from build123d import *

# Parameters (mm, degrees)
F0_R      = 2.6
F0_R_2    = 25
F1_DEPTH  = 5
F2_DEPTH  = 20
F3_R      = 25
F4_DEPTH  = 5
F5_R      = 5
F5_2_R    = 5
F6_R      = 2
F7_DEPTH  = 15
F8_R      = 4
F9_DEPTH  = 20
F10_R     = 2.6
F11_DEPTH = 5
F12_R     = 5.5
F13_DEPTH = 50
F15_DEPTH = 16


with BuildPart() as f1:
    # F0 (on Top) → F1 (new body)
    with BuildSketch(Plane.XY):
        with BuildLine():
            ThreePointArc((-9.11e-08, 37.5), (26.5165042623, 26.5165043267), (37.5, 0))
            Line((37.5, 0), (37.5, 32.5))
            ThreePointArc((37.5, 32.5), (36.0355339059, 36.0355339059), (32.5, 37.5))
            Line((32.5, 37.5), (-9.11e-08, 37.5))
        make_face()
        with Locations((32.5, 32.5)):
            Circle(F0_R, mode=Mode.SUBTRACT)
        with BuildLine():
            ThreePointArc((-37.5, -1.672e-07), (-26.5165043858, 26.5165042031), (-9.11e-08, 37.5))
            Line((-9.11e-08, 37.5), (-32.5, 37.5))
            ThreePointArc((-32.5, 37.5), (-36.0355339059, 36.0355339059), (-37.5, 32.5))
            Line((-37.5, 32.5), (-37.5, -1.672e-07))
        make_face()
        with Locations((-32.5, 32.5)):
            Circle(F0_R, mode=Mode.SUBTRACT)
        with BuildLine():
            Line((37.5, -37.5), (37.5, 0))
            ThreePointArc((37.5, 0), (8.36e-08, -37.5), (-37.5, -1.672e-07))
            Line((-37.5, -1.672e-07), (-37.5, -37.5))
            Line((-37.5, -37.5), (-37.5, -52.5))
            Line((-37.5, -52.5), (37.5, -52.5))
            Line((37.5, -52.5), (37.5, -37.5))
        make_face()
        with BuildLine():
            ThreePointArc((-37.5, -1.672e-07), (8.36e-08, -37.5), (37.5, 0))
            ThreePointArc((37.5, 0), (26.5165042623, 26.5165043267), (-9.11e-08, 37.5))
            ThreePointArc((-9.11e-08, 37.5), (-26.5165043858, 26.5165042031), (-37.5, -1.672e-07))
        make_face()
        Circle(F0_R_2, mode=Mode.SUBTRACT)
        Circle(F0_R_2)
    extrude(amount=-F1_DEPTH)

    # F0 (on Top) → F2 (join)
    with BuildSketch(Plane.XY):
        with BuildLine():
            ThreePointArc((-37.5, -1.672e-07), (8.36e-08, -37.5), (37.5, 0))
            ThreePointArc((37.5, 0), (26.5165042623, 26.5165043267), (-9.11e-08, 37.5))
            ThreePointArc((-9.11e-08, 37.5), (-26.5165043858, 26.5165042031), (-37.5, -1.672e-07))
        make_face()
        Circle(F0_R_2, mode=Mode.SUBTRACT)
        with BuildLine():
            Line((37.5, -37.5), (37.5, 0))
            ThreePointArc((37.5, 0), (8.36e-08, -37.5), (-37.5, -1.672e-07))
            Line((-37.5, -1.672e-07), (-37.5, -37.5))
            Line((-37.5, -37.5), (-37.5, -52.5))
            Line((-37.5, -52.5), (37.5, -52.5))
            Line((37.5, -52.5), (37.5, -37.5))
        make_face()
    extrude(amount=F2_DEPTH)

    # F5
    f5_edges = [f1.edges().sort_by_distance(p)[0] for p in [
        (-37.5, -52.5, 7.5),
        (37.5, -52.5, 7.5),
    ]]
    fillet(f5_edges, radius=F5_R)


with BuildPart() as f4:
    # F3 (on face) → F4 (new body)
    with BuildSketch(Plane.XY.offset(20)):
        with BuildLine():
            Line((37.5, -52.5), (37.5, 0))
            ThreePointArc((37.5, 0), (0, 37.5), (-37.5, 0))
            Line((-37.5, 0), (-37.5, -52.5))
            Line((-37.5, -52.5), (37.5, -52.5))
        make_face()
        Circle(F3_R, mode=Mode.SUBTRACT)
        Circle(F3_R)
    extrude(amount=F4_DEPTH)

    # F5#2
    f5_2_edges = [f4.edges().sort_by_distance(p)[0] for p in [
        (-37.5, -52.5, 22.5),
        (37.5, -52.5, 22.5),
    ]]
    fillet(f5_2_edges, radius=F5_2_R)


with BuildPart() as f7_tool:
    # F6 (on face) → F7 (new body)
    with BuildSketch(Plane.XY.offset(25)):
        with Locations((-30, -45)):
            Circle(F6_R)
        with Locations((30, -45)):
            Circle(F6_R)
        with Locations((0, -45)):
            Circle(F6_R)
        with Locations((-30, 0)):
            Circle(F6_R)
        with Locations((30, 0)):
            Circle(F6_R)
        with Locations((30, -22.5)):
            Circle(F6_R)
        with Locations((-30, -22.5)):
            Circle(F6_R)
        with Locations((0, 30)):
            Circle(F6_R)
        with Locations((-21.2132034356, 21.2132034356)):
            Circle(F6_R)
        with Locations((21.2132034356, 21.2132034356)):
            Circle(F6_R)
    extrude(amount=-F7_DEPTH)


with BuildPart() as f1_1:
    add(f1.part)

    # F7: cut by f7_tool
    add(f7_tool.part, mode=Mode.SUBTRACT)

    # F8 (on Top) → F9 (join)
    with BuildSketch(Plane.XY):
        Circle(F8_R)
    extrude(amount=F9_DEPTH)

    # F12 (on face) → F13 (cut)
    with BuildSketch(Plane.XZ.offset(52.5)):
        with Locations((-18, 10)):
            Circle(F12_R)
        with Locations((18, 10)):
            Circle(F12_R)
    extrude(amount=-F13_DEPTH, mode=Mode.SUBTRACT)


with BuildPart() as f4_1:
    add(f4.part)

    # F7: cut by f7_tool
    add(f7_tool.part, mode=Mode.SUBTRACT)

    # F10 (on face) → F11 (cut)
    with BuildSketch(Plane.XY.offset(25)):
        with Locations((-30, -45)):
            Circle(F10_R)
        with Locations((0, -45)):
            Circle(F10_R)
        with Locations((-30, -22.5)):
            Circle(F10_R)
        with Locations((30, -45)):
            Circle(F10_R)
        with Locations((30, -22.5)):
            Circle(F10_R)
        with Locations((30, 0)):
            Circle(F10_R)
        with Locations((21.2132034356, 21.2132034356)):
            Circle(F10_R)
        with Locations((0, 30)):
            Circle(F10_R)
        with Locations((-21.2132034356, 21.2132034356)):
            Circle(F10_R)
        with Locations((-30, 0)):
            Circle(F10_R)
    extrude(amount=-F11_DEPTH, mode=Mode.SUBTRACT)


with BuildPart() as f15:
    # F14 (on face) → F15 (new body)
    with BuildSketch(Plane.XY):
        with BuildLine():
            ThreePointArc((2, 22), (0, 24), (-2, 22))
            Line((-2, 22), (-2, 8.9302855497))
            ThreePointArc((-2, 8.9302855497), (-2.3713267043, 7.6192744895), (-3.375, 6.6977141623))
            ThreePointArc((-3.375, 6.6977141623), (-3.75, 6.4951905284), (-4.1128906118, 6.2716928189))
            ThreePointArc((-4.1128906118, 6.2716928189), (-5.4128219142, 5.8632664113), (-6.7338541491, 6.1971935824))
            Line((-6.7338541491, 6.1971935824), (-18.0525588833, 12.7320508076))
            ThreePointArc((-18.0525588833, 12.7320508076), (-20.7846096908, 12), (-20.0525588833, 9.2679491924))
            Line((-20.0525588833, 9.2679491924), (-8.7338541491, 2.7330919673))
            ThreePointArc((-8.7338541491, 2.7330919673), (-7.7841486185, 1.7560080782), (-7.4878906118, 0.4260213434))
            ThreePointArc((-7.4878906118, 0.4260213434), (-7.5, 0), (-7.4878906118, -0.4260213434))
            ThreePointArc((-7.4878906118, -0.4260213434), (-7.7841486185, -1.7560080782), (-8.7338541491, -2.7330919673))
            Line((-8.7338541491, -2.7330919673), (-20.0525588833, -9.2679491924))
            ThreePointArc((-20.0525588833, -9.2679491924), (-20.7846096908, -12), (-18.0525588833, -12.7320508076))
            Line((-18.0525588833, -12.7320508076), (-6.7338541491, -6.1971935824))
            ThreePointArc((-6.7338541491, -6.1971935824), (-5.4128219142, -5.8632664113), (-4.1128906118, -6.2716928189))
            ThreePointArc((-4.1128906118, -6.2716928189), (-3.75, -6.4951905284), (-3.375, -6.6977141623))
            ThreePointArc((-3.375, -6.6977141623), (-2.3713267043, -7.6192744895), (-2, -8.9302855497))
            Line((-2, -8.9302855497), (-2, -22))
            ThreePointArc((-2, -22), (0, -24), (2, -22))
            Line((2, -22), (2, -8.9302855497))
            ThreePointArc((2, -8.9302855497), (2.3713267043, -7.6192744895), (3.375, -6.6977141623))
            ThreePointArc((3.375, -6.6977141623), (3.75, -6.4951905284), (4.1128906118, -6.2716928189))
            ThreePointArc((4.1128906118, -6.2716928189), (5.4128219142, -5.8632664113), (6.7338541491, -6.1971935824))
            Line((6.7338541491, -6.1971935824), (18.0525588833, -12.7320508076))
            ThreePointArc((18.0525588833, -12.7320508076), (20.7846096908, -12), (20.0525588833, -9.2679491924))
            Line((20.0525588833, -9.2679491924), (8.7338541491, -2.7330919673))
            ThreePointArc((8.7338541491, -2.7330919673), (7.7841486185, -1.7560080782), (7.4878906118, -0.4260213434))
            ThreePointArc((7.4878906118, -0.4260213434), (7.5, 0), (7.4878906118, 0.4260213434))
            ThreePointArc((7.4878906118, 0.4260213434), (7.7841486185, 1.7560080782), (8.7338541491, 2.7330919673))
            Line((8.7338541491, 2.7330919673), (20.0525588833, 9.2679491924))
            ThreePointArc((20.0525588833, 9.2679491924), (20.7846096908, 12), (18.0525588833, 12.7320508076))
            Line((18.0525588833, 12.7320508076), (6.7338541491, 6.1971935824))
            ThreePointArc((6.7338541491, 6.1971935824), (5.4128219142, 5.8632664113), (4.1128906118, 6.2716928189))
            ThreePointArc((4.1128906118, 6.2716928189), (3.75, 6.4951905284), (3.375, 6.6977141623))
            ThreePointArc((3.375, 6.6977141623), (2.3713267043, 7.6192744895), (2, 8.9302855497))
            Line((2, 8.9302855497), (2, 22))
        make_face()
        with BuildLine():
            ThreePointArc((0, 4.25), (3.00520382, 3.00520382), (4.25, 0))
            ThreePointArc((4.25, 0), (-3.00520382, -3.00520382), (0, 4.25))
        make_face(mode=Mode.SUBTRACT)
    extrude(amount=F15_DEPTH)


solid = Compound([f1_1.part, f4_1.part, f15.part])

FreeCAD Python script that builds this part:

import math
import FreeCAD as App
import Part
import Sketcher

V = App.Vector
Q = App.Units.Quantity


def edges_at(feature, points):
    """Names of the edges that pass closest to the given points."""
    edges = feature.Shape.Edges
    near = lambda p: min(range(len(edges)), key=lambda i: edges[i].distToShape(Part.Vertex(*p))[0])
    return sorted({f"Edge{near(p) + 1}" for p in points})

doc = App.newDocument("Part")
body = doc.addObject("PartDesign::Body", "Body")

sketch1 = body.newObject("Sketcher::SketchObject", "Sketch")
sketch1.AttachmentSupport = (doc.getObject("XY_Plane"), [""])
sketch1.MapMode = "FlatFace"
sketch1.addGeometry(Part.LineSegment(V(32.5, 37.5, 0), V(-32.5, 37.5, 0)), False)
sketch1.addGeometry(Part.ArcOfCircle(Part.Circle(V(-32.5, 32.5, 0), V(0, 0, 1), 5), math.radians(90), math.radians(180)), False)
sketch1.addGeometry(Part.LineSegment(V(-37.5, 32.5, 0), V(-37.5, -52.5, 0)), False)
sketch1.addGeometry(Part.LineSegment(V(-37.5, -52.5, 0), V(37.5, -52.5, 0)), False)
sketch1.addGeometry(Part.LineSegment(V(37.5, -52.5, 0), V(37.5, 32.5, 0)), False)
sketch1.addGeometry(Part.ArcOfCircle(Part.Circle(V(32.5, 32.5, 0), V(0, 0, 1), 5), math.radians(0), math.radians(90)), False)
sketch1.addGeometry(Part.Circle(V(-32.5, 32.5, 0), V(0, 0, 1), 2.6), False)
sketch1.addGeometry(Part.Circle(V(32.5, 32.5, 0), V(0, 0, 1), 2.6), False)
sketch1.addConstraint(Sketcher.Constraint("Tangent", 0, 2, 1, 1))
sketch1.addConstraint(Sketcher.Constraint("Tangent", 1, 2, 2, 1))
sketch1.addConstraint(Sketcher.Constraint("Coincident", 2, 2, 3, 1))
sketch1.addConstraint(Sketcher.Constraint("Coincident", 3, 2, 4, 1))
sketch1.addConstraint(Sketcher.Constraint("Tangent", 4, 2, 5, 1))
sketch1.addConstraint(Sketcher.Constraint("Tangent", 5, 2, 0, 1))
sketch1.addConstraint(Sketcher.Constraint("Horizontal", 0))
sketch1.addConstraint(Sketcher.Constraint("Vertical", 2))
sketch1.addConstraint(Sketcher.Constraint("Horizontal", 3))
sketch1.addConstraint(Sketcher.Constraint("Vertical", 4))
sketch1.addConstraint(Sketcher.Constraint("Coincident", 6, 3, 1, 3))
sketch1.addConstraint(Sketcher.Constraint("Coincident", 7, 3, 5, 3))
sketch1.addConstraint(Sketcher.Constraint("Equal", 1, 5))
sketch1.addConstraint(Sketcher.Constraint("Equal", 6, 7))
sketch1.addConstraint(Sketcher.Constraint("Radius", 1, Q("5 mm")))
sketch1.addConstraint(Sketcher.Constraint("Diameter", 6, Q("5.2 mm")))
sketch1.addConstraint(Sketcher.Constraint("DistanceX", 0, 2, 0, 1, Q("65 mm")))
sketch1.addConstraint(Sketcher.Constraint("DistanceY", 2, 2, 2, 1, Q("85 mm")))
sketch1.addConstraint(Sketcher.Constraint("DistanceX", 1, 3, -1, 1, Q("32.5 mm")))
sketch1.addConstraint(Sketcher.Constraint("DistanceY", -1, 1, 1, 3, Q("32.5 mm")))
pad1 = body.newObject("PartDesign::Pad", "Pad")
pad1.Profile = sketch1
pad1.Length = 5
pad1.Reversed = True

sketch2 = body.newObject("Sketcher::SketchObject", "Sketch001")
sketch2.AttachmentSupport = (doc.getObject("XY_Plane"), [""])
sketch2.MapMode = "FlatFace"
sketch2.addGeometry(Part.ArcOfCircle(Part.Circle(V(0, 0, 0), V(0, 0, 1), 38), math.radians(0), math.radians(90)), False)
sketch2.addGeometry(Part.ArcOfCircle(Part.Circle(V(0, 0, 0), V(0, 0, 1), 38), math.radians(90), math.radians(180)), False)
sketch2.addGeometry(Part.LineSegment(V(-38, 0, 0), V(-38, -52, 0)), False)
sketch2.addGeometry(Part.LineSegment(V(-38, -52, 0), V(38, -52, 0)), False)
sketch2.addGeometry(Part.LineSegment(V(38, -52, 0), V(38, 0, 0)), False)
sketch2.addGeometry(Part.Circle(V(0, 0, 0), V(0, 0, 1), 25), False)
sketch2.addConstraint(Sketcher.Constraint("Tangent", 0, 2, 1, 1))
sketch2.addConstraint(Sketcher.Constraint("Tangent", 1, 2, 2, 1))
sketch2.addConstraint(Sketcher.Constraint("Coincident", 2, 2, 3, 1))
sketch2.addConstraint(Sketcher.Constraint("Coincident", 3, 2, 4, 1))
sketch2.addConstraint(Sketcher.Constraint("Tangent", 4, 2, 0, 1))
sketch2.addConstraint(Sketcher.Constraint("Vertical", 2))
sketch2.addConstraint(Sketcher.Constraint("Horizontal", 3))
sketch2.addConstraint(Sketcher.Constraint("Vertical", 4))
sketch2.addConstraint(Sketcher.Constraint("Coincident", 0, 3, -1, 1))
sketch2.addConstraint(Sketcher.Constraint("Coincident", 5, 3, -1, 1))
sketch2.addConstraint(Sketcher.Constraint("Equal", 0, 1))
sketch2.addConstraint(Sketcher.Constraint("PointOnObject", 0, 2, -2))
sketch2.addConstraint(Sketcher.Constraint("Diameter", 5, Q("50 mm")))
sketch2.addConstraint(Sketcher.Constraint("Radius", 0, Q("37.5 mm")))
sketch2.addConstraint(Sketcher.Constraint("DistanceY", 2, 2, 2, 1, Q("52.5 mm")))
pad2 = body.newObject("PartDesign::Pad", "Pad001")
pad2.Profile = sketch2
pad2.Length = 20
doc.recompute()

fillet = body.newObject("PartDesign::Fillet", "Fillet")
fillet.Base = (pad2, edges_at(pad2, [(-37.5, -52.5, 7.5), (37.5, -52.5, 7.5)]))
fillet.Radius = 5
body2 = doc.addObject("PartDesign::Body", "Body001")

sketch3 = body2.newObject("Sketcher::SketchObject", "Sketch002")
sketch3.AttachmentSupport = (doc.getObject("XY_Plane001"), [""])
sketch3.MapMode = "FlatFace"
sketch3.AttachmentOffset = App.Placement(V(0, 0, 20), App.Rotation())
sketch3.addGeometry(Part.LineSegment(V(38, -52, 0), V(38, 0, 0)), False)
sketch3.addGeometry(Part.ArcOfCircle(Part.Circle(V(0, 0, 0), V(0, 0, 1), 38), math.radians(0), math.radians(180)), False)
sketch3.addGeometry(Part.LineSegment(V(-38, 0, 0), V(-38, -52, 0)), False)
sketch3.addGeometry(Part.LineSegment(V(-38, -52, 0), V(38, -52, 0)), False)
sketch3.addConstraint(Sketcher.Constraint("Tangent", 0, 2, 1, 1))
sketch3.addConstraint(Sketcher.Constraint("Tangent", 1, 2, 2, 1))
sketch3.addConstraint(Sketcher.Constraint("Coincident", 2, 2, 3, 1))
sketch3.addConstraint(Sketcher.Constraint("Coincident", 3, 2, 0, 1))
sketch3.addConstraint(Sketcher.Constraint("Vertical", 0))
sketch3.addConstraint(Sketcher.Constraint("Vertical", 2))
sketch3.addConstraint(Sketcher.Constraint("Horizontal", 3))
sketch3.addConstraint(Sketcher.Constraint("Coincident", 1, 3, -1, 1))
sketch3.addConstraint(Sketcher.Constraint("Radius", 1, Q("37.5 mm")))
sketch3.addConstraint(Sketcher.Constraint("DistanceY", 0, 1, 0, 2, Q("52.5 mm")))
pad3 = body2.newObject("PartDesign::Pad", "Pad002")
pad3.Profile = sketch3
pad3.Length = 5
doc.recompute()

fillet2 = body2.newObject("PartDesign::Fillet", "Fillet001")
fillet2.Base = (pad3, edges_at(pad3, [(-37.5, -52.5, 22.5), (37.5, -52.5, 22.5)]))
fillet2.Radius = 5
body3 = doc.addObject("PartDesign::Body", "Body002")
body3.AllowCompound = True

sketch4 = body3.newObject("Sketcher::SketchObject", "Sketch003")
sketch4.AttachmentSupport = (doc.getObject("XY_Plane002"), [""])
sketch4.MapMode = "FlatFace"
sketch4.AttachmentOffset = App.Placement(V(0, 0, 25), App.Rotation())
sketch4.addGeometry(Part.Circle(V(-30, -45, 0), V(0, 0, 1), 2), False)
sketch4.addGeometry(Part.Circle(V(30, -45, 0), V(0, 0, 1), 2), False)
sketch4.addGeometry(Part.Circle(V(0, -45, 0), V(0, 0, 1), 2), False)
sketch4.addGeometry(Part.Circle(V(-30, 0, 0), V(0, 0, 1), 2), False)
sketch4.addGeometry(Part.Circle(V(30, 0, 0), V(0, 0, 1), 2), False)
sketch4.addGeometry(Part.Circle(V(30, -22.5, 0), V(0, 0, 1), 2), False)
sketch4.addGeometry(Part.Circle(V(-30, -22.5, 0), V(0, 0, 1), 2), False)
sketch4.addGeometry(Part.Circle(V(0, 30, 0), V(0, 0, 1), 2), False)
sketch4.addGeometry(Part.Circle(V(-21.2, 21.2, 0), V(0, 0, 1), 2), False)
sketch4.addGeometry(Part.Circle(V(21.2, 21.2, 0), V(0, 0, 1), 2), False)
sketch4.addConstraint(Sketcher.Constraint("Equal", 0, 1))
sketch4.addConstraint(Sketcher.Constraint("Equal", 1, 2))
sketch4.addConstraint(Sketcher.Constraint("Equal", 2, 3))
sketch4.addConstraint(Sketcher.Constraint("Equal", 3, 4))
sketch4.addConstraint(Sketcher.Constraint("Equal", 4, 5))
sketch4.addConstraint(Sketcher.Constraint("Equal", 5, 6))
sketch4.addConstraint(Sketcher.Constraint("Equal", 6, 7))
sketch4.addConstraint(Sketcher.Constraint("Equal", 7, 8))
sketch4.addConstraint(Sketcher.Constraint("Equal", 8, 9))
sketch4.addConstraint(Sketcher.Constraint("Symmetric", 3, 3, 4, 3, -1, 1))
sketch4.addConstraint(Sketcher.Constraint("Symmetric", 0, 3, 1, 3, -2))
sketch4.addConstraint(Sketcher.Constraint("Symmetric", 5, 3, 6, 3, -2))
sketch4.addConstraint(Sketcher.Constraint("Symmetric", 8, 3, 9, 3, -2))
sketch4.addConstraint(Sketcher.Constraint("PointOnObject", 2, 3, -2))
sketch4.addConstraint(Sketcher.Constraint("PointOnObject", 3, 3, -1))
sketch4.addConstraint(Sketcher.Constraint("PointOnObject", 7, 3, -2))
sketch4.addConstraint(Sketcher.Constraint("Horizontal", 1, 3, 2, 3))
sketch4.addConstraint(Sketcher.Constraint("Vertical", 0, 3, 3, 3))
sketch4.addConstraint(Sketcher.Constraint("Vertical", 4, 3, 5, 3))
sketch4.addConstraint(Sketcher.Constraint("Diameter", 0, Q("4 mm")))
sketch4.addConstraint(Sketcher.Constraint("DistanceX", 0, 3, -1, 1, Q("30 mm")))
sketch4.addConstraint(Sketcher.Constraint("DistanceY", 0, 3, -1, 1, Q("45 mm")))
sketch4.addConstraint(Sketcher.Constraint("DistanceY", -1, 1, 7, 3, Q("30 mm")))
sketch4.addConstraint(Sketcher.Constraint("DistanceY", 5, 3, -1, 1, Q("22.5 mm")))
sketch4.addConstraint(Sketcher.Constraint("DistanceX", 8, 3, -1, 1, Q("21.213203 mm")))
sketch4.addConstraint(Sketcher.Constraint("DistanceY", -1, 1, 8, 3, Q("21.213203 mm")))
pad4 = body3.newObject("PartDesign::Pad", "Pad003")
pad4.Profile = sketch4
pad4.Length = 15
pad4.Reversed = True
doc.recompute()

body4 = doc.addObject("PartDesign::Body", "Body003")
body4.BaseFeature = body3
boolean = body.newObject("PartDesign::Boolean", "Boolean")
boolean.Type = "Cut"
boolean.addObjects([body4])
doc.recompute()

sketch5 = body.newObject("Sketcher::SketchObject", "Sketch004")
sketch5.AttachmentSupport = (doc.getObject("XY_Plane"), [""])
sketch5.MapMode = "FlatFace"
sketch5.addGeometry(Part.Circle(V(0, 0, 0), V(0, 0, 1), 4), False)
sketch5.addConstraint(Sketcher.Constraint("Coincident", 0, 3, -1, 1))
sketch5.addConstraint(Sketcher.Constraint("Diameter", 0, Q("8 mm")))
pad5 = body.newObject("PartDesign::Pad", "Pad004")
pad5.Profile = sketch5
pad5.Length = 20

sketch6 = body.newObject("Sketcher::SketchObject", "Sketch005")
sketch6.AttachmentSupport = (doc.getObject("XZ_Plane"), [""])
sketch6.MapMode = "FlatFace"
sketch6.AttachmentOffset = App.Placement(V(0, 0, 52.5), App.Rotation())
sketch6.addGeometry(Part.Circle(V(-18, 10, 0), V(0, 0, 1), 6), False)
sketch6.addGeometry(Part.Circle(V(18, 10, 0), V(0, 0, 1), 6), False)
sketch6.addConstraint(Sketcher.Constraint("Equal", 0, 1))
sketch6.addConstraint(Sketcher.Constraint("Symmetric", 0, 3, 1, 3, -2))
sketch6.addConstraint(Sketcher.Constraint("Diameter", 0, Q("11 mm")))
sketch6.addConstraint(Sketcher.Constraint("DistanceX", 0, 3, -1, 1, Q("18 mm")))
sketch6.addConstraint(Sketcher.Constraint("DistanceY", -1, 1, 0, 3, Q("10 mm")))
pocket1 = body.newObject("PartDesign::Pocket", "Pocket")
pocket1.Profile = sketch6
pocket1.Length = 50
doc.recompute()

boolean2 = body2.newObject("PartDesign::Boolean", "Boolean001")
boolean2.Type = "Cut"
boolean2.addObjects([body3])

sketch7 = body2.newObject("Sketcher::SketchObject", "Sketch006")
sketch7.AttachmentSupport = (doc.getObject("XY_Plane001"), [""])
sketch7.MapMode = "FlatFace"
sketch7.AttachmentOffset = App.Placement(V(0, 0, 25), App.Rotation())
sketch7.addGeometry(Part.Circle(V(-30, -45, 0), V(0, 0, 1), 2.6), False)
sketch7.addGeometry(Part.Circle(V(0, -45, 0), V(0, 0, 1), 2.6), False)
sketch7.addGeometry(Part.Circle(V(-30, -22.5, 0), V(0, 0, 1), 2.6), False)
sketch7.addGeometry(Part.Circle(V(30, -45, 0), V(0, 0, 1), 2.6), False)
sketch7.addGeometry(Part.Circle(V(30, -22.5, 0), V(0, 0, 1), 2.6), False)
sketch7.addGeometry(Part.Circle(V(30, 0, 0), V(0, 0, 1), 2.6), False)
sketch7.addGeometry(Part.Circle(V(21.2, 21.2, 0), V(0, 0, 1), 2.6), False)
sketch7.addGeometry(Part.Circle(V(0, 30, 0), V(0, 0, 1), 2.6), False)
sketch7.addGeometry(Part.Circle(V(-21.2, 21.2, 0), V(0, 0, 1), 2.6), False)
sketch7.addGeometry(Part.Circle(V(-30, 0, 0), V(0, 0, 1), 2.6), False)
sketch7.addConstraint(Sketcher.Constraint("Equal", 0, 1))
sketch7.addConstraint(Sketcher.Constraint("Equal", 1, 2))
sketch7.addConstraint(Sketcher.Constraint("Equal", 2, 3))
sketch7.addConstraint(Sketcher.Constraint("Equal", 3, 4))
sketch7.addConstraint(Sketcher.Constraint("Equal", 4, 5))
sketch7.addConstraint(Sketcher.Constraint("Equal", 5, 6))
sketch7.addConstraint(Sketcher.Constraint("Equal", 6, 7))
sketch7.addConstraint(Sketcher.Constraint("Equal", 7, 8))
sketch7.addConstraint(Sketcher.Constraint("Equal", 8, 9))
sketch7.addConstraint(Sketcher.Constraint("Symmetric", 5, 3, 9, 3, -1, 1))
sketch7.addConstraint(Sketcher.Constraint("Symmetric", 0, 3, 3, 3, -2))
sketch7.addConstraint(Sketcher.Constraint("Symmetric", 2, 3, 4, 3, -2))
sketch7.addConstraint(Sketcher.Constraint("Symmetric", 6, 3, 8, 3, -2))
sketch7.addConstraint(Sketcher.Constraint("PointOnObject", 1, 3, -2))
sketch7.addConstraint(Sketcher.Constraint("PointOnObject", 5, 3, -1))
sketch7.addConstraint(Sketcher.Constraint("PointOnObject", 7, 3, -2))
sketch7.addConstraint(Sketcher.Constraint("Horizontal", 0, 3, 1, 3))
sketch7.addConstraint(Sketcher.Constraint("Vertical", 0, 3, 2, 3))
sketch7.addConstraint(Sketcher.Constraint("Vertical", 4, 3, 5, 3))
sketch7.addConstraint(Sketcher.Constraint("Diameter", 0, Q("5.2 mm")))
sketch7.addConstraint(Sketcher.Constraint("DistanceX", 0, 3, -1, 1, Q("30 mm")))
sketch7.addConstraint(Sketcher.Constraint("DistanceY", 0, 3, -1, 1, Q("45 mm")))
sketch7.addConstraint(Sketcher.Constraint("DistanceY", -1, 1, 7, 3, Q("30 mm")))
sketch7.addConstraint(Sketcher.Constraint("DistanceY", 2, 3, -1, 1, Q("22.5 mm")))
sketch7.addConstraint(Sketcher.Constraint("DistanceX", -1, 1, 6, 3, Q("21.213203 mm")))
sketch7.addConstraint(Sketcher.Constraint("DistanceY", -1, 1, 6, 3, Q("21.213203 mm")))
pocket2 = body2.newObject("PartDesign::Pocket", "Pocket001")
pocket2.Profile = sketch7
pocket2.Length = 5
body5 = doc.addObject("PartDesign::Body", "Body004")

sketch8 = body5.newObject("Sketcher::SketchObject", "Sketch007")
sketch8.AttachmentSupport = (doc.getObject("XY_Plane004"), [""])
sketch8.MapMode = "FlatFace"
sketch8.addGeometry(Part.ArcOfCircle(Part.Circle(V(0, 22, 0), V(0, 0, 1), 2), math.radians(0), math.radians(180)), False)
sketch8.addGeometry(Part.LineSegment(V(-2, 22, 0), V(-2, 8.9, 0)), False)
sketch8.addGeometry(Part.ArcOfCircle(Part.Circle(V(-4.5, 8.9, 0), V(0, 0, 1), 2.5), math.radians(-63), math.radians(0)), False)
sketch8.addGeometry(Part.ArcOfCircle(Part.Circle(V(0, 0, 0), V(0, 0, 1), 7.5), math.radians(116.74), math.radians(123.26)), False)
sketch8.addGeometry(Part.ArcOfCircle(Part.Circle(V(-5.5, 8.4, 0), V(0, 0, 1), 2.5), math.radians(-120), math.radians(-57)), False)
sketch8.addGeometry(Part.LineSegment(V(-6.7, 6.2, 0), V(-18.1, 12.7, 0)), False)
sketch8.addGeometry(Part.ArcOfCircle(Part.Circle(V(-19.1, 11, 0), V(0, 0, 1), 2), math.radians(60), math.radians(240)), False)
sketch8.addGeometry(Part.LineSegment(V(-20.1, 9.3, 0), V(-8.7, 2.7, 0)), False)
sketch8.addGeometry(Part.ArcOfCircle(Part.Circle(V(-10, 0.6, 0), V(0, 0, 1), 2.5), math.radians(-3), math.radians(60)), False)
sketch8.addGeometry(Part.ArcOfCircle(Part.Circle(V(0, 0, 0), V(0, 0, 1), 7.5), math.radians(176.74), math.radians(183.26)), False)
sketch8.addGeometry(Part.ArcOfCircle(Part.Circle(V(-10, -0.6, 0), V(0, 0, 1), 2.5), math.radians(-60), math.radians(3)), False)
sketch8.addGeometry(Part.LineSegment(V(-8.7, -2.7, 0), V(-20.1, -9.3, 0)), False)
sketch8.addGeometry(Part.ArcOfCircle(Part.Circle(V(-19.1, -11, 0), V(0, 0, 1), 2), math.radians(120), math.radians(300)), False)
sketch8.addGeometry(Part.LineSegment(V(-18.1, -12.7, 0), V(-6.7, -6.2, 0)), False)
sketch8.addGeometry(Part.ArcOfCircle(Part.Circle(V(-5.5, -8.4, 0), V(0, 0, 1), 2.5), math.radians(57), math.radians(120)), False)
sketch8.addGeometry(Part.ArcOfCircle(Part.Circle(V(0, 0, 0), V(0, 0, 1), 7.5), math.radians(-123.26), math.radians(-116.74)), False)
sketch8.addGeometry(Part.ArcOfCircle(Part.Circle(V(-4.5, -8.9, 0), V(0, 0, 1), 2.5), math.radians(0), math.radians(63)), False)
sketch8.addGeometry(Part.LineSegment(V(-2, -8.9, 0), V(-2, -22, 0)), False)
sketch8.addGeometry(Part.ArcOfCircle(Part.Circle(V(0, -22, 0), V(0, 0, 1), 2), math.radians(180), math.radians(360)), False)
sketch8.addGeometry(Part.LineSegment(V(2, -22, 0), V(2, -8.9, 0)), False)
sketch8.addGeometry(Part.ArcOfCircle(Part.Circle(V(4.5, -8.9, 0), V(0, 0, 1), 2.5), math.radians(117), math.radians(180)), False)
sketch8.addGeometry(Part.ArcOfCircle(Part.Circle(V(0, 0, 0), V(0, 0, 1), 7.5), math.radians(-63.26), math.radians(-56.74)), False)
sketch8.addGeometry(Part.ArcOfCircle(Part.Circle(V(5.5, -8.4, 0), V(0, 0, 1), 2.5), math.radians(60), math.radians(123)), False)
sketch8.addGeometry(Part.LineSegment(V(6.7, -6.2, 0), V(18.1, -12.7, 0)), False)
sketch8.addGeometry(Part.ArcOfCircle(Part.Circle(V(19.1, -11, 0), V(0, 0, 1), 2), math.radians(-120), math.radians(60)), False)
sketch8.addGeometry(Part.LineSegment(V(20.1, -9.3, 0), V(8.7, -2.7, 0)), False)
sketch8.addGeometry(Part.ArcOfCircle(Part.Circle(V(10, -0.6, 0), V(0, 0, 1), 2.5), math.radians(177), math.radians(240)), False)
sketch8.addGeometry(Part.ArcOfCircle(Part.Circle(V(0, 0, 0), V(0, 0, 1), 7.5), math.radians(-3.26), math.radians(3.26)), False)
sketch8.addGeometry(Part.ArcOfCircle(Part.Circle(V(10, 0.6, 0), V(0, 0, 1), 2.5), math.radians(120), math.radians(183)), False)
sketch8.addGeometry(Part.LineSegment(V(8.7, 2.7, 0), V(20.1, 9.3, 0)), False)
sketch8.addGeometry(Part.ArcOfCircle(Part.Circle(V(19.1, 11, 0), V(0, 0, 1), 2), math.radians(-60), math.radians(120)), False)
sketch8.addGeometry(Part.LineSegment(V(18.1, 12.7, 0), V(6.7, 6.2, 0)), False)
sketch8.addGeometry(Part.ArcOfCircle(Part.Circle(V(5.5, 8.4, 0), V(0, 0, 1), 2.5), math.radians(-123), math.radians(-60)), False)
sketch8.addGeometry(Part.ArcOfCircle(Part.Circle(V(0, 0, 0), V(0, 0, 1), 7.5), math.radians(56.74), math.radians(63.26)), False)
sketch8.addGeometry(Part.ArcOfCircle(Part.Circle(V(4.5, 8.9, 0), V(0, 0, 1), 2.5), math.radians(180), math.radians(243)), False)
sketch8.addGeometry(Part.LineSegment(V(2, 8.9, 0), V(2, 22, 0)), False)
sketch8.addGeometry(Part.ArcOfCircle(Part.Circle(V(0, 0, 0), V(0, 0, 1), 4.2), math.radians(90), math.radians(360)), False)
sketch8.addGeometry(Part.ArcOfCircle(Part.Circle(V(0, 0, 0), V(0, 0, 1), 4.2), math.radians(0), math.radians(90)), False)
sketch8.addConstraint(Sketcher.Constraint("Tangent", 0, 2, 1, 1))
sketch8.addConstraint(Sketcher.Constraint("Tangent", 1, 2, 2, 2))
sketch8.addConstraint(Sketcher.Constraint("Tangent", 2, 1, 3, 1))
sketch8.addConstraint(Sketcher.Constraint("Tangent", 3, 2, 4, 2))
sketch8.addConstraint(Sketcher.Constraint("Tangent", 4, 1, 5, 1))
sketch8.addConstraint(Sketcher.Constraint("Tangent", 5, 2, 6, 1))
sketch8.addConstraint(Sketcher.Constraint("Tangent", 6, 2, 7, 1))
sketch8.addConstraint(Sketcher.Constraint("Tangent", 7, 2, 8, 2))
sketch8.addConstraint(Sketcher.Constraint("Tangent", 8, 1, 9, 1))
sketch8.addConstraint(Sketcher.Constraint("Tangent", 9, 2, 10, 2))
sketch8.addConstraint(Sketcher.Constraint("Tangent", 10, 1, 11, 1))
sketch8.addConstraint(Sketcher.Constraint("Tangent", 11, 2, 12, 1))
sketch8.addConstraint(Sketcher.Constraint("Tangent", 12, 2, 13, 1))
sketch8.addConstraint(Sketcher.Constraint("Tangent", 13, 2, 14, 2))
sketch8.addConstraint(Sketcher.Constraint("Tangent", 14, 1, 15, 1))
sketch8.addConstraint(Sketcher.Constraint("Tangent", 15, 2, 16, 2))
sketch8.addConstraint(Sketcher.Constraint("Tangent", 16, 1, 17, 1))
sketch8.addConstraint(Sketcher.Constraint("Tangent", 17, 2, 18, 1))
sketch8.addConstraint(Sketcher.Constraint("Tangent", 18, 2, 19, 1))
sketch8.addConstraint(Sketcher.Constraint("Tangent", 19, 2, 20, 2))
sketch8.addConstraint(Sketcher.Constraint("Tangent", 20, 1, 21, 1))
sketch8.addConstraint(Sketcher.Constraint("Tangent", 21, 2, 22, 2))
sketch8.addConstraint(Sketcher.Constraint("Tangent", 22, 1, 23, 1))
sketch8.addConstraint(Sketcher.Constraint("Tangent", 23, 2, 24, 1))
sketch8.addConstraint(Sketcher.Constraint("Tangent", 24, 2, 25, 1))
sketch8.addConstraint(Sketcher.Constraint("Tangent", 25, 2, 26, 2))
sketch8.addConstraint(Sketcher.Constraint("Tangent", 26, 1, 27, 1))
sketch8.addConstraint(Sketcher.Constraint("Tangent", 27, 2, 28, 2))
sketch8.addConstraint(Sketcher.Constraint("Tangent", 28, 1, 29, 1))
sketch8.addConstraint(Sketcher.Constraint("Tangent", 29, 2, 30, 1))
sketch8.addConstraint(Sketcher.Constraint("Tangent", 30, 2, 31, 1))
sketch8.addConstraint(Sketcher.Constraint("Tangent", 31, 2, 32, 2))
sketch8.addConstraint(Sketcher.Constraint("Tangent", 32, 1, 33, 1))
sketch8.addConstraint(Sketcher.Constraint("Tangent", 33, 2, 34, 2))
sketch8.addConstraint(Sketcher.Constraint("Tangent", 34, 1, 35, 1))
sketch8.addConstraint(Sketcher.Constraint("Tangent", 35, 2, 0, 1))
sketch8.addConstraint(Sketcher.Constraint("Tangent", 36, 1, 37, 2))
sketch8.addConstraint(Sketcher.Constraint("Coincident", 37, 1, 36, 2))
sketch8.addConstraint(Sketcher.Constraint("Vertical", 1))
sketch8.addConstraint(Sketcher.Constraint("Vertical", 17))
sketch8.addConstraint(Sketcher.Constraint("Vertical", 19))
sketch8.addConstraint(Sketcher.Constraint("Vertical", 35))
sketch8.addConstraint(Sketcher.Constraint("Coincident", 3, 3, -1, 1))
sketch8.addConstraint(Sketcher.Constraint("Coincident", 9, 3, -1, 1))
sketch8.addConstraint(Sketcher.Constraint("Coincident", 15, 3, -1, 1))
sketch8.addConstraint(Sketcher.Constraint("Coincident", 21, 3, -1, 1))
sketch8.addConstraint(Sketcher.Constraint("Coincident", 27, 3, -1, 1))
sketch8.addConstraint(Sketcher.Constraint("Coincident", 33, 3, -1, 1))
sketch8.addConstraint(Sketcher.Constraint("Coincident", 36, 3, -1, 1))
sketch8.addConstraint(Sketcher.Constraint("Equal", 2, 4))
sketch8.addConstraint(Sketcher.Constraint("Equal", 0, 6))
sketch8.addConstraint(Sketcher.Constraint("Equal", 4, 8))
sketch8.addConstraint(Sketcher.Constraint("Equal", 3, 9))
sketch8.addConstraint(Sketcher.Constraint("Equal", 8, 10))
sketch8.addConstraint(Sketcher.Constraint("Equal", 6, 12))
sketch8.addConstraint(Sketcher.Constraint("Equal", 10, 14))
sketch8.addConstraint(Sketcher.Constraint("Equal", 9, 15))
sketch8.addConstraint(Sketcher.Constraint("Equal", 14, 16))
sketch8.addConstraint(Sketcher.Constraint("Equal", 12, 18))
sketch8.addConstraint(Sketcher.Constraint("Equal", 16, 20))
sketch8.addConstraint(Sketcher.Constraint("Equal", 15, 21))
sketch8.addConstraint(Sketcher.Constraint("Equal", 20, 22))
sketch8.addConstraint(Sketcher.Constraint("Equal", 18, 24))
sketch8.addConstraint(Sketcher.Constraint("Equal", 22, 26))
sketch8.addConstraint(Sketcher.Constraint("Equal", 21, 27))
sketch8.addConstraint(Sketcher.Constraint("Equal", 26, 28))
sketch8.addConstraint(Sketcher.Constraint("Equal", 24, 30))
sketch8.addConstraint(Sketcher.Constraint("Equal", 28, 32))
sketch8.addConstraint(Sketcher.Constraint("Equal", 27, 33))
sketch8.addConstraint(Sketcher.Constraint("Equal", 32, 34))
sketch8.addConstraint(Sketcher.Constraint("Symmetric", 0, 3, 18, 3, -1, 1))
sketch8.addConstraint(Sketcher.Constraint("Symmetric", 6, 3, 24, 3, -1, 1))
sketch8.addConstraint(Sketcher.Constraint("Symmetric", 12, 3, 30, 3, -1, 1))
sketch8.addConstraint(Sketcher.Constraint("Symmetric", 12, 3, 24, 3, -2))
sketch8.addConstraint(Sketcher.Constraint("PointOnObject", 0, 3, -2))
sketch8.addConstraint(Sketcher.Constraint("PointOnObject", 36, 1, -2))
sketch8.addConstraint(Sketcher.Constraint("PointOnObject", 37, 1, -1))
sketch8.addConstraint(Sketcher.Constraint("Parallel", 5, 7))
sketch8.addConstraint(Sketcher.Constraint("Parallel", 11, 13))
sketch8.addConstraint(Sketcher.Constraint("Parallel", 7, 23))
sketch8.addConstraint(Sketcher.Constraint("Parallel", 23, 25))
sketch8.addConstraint(Sketcher.Constraint("Parallel", 13, 29))
sketch8.addConstraint(Sketcher.Constraint("Parallel", 29, 31))
sketch8.addConstraint(Sketcher.Constraint("Horizontal", 14, 3, 22, 3))
sketch8.addConstraint(Sketcher.Constraint("Equal", 5, 7))
sketch8.addConstraint(Sketcher.Constraint("Radius", 0, Q("2 mm")))
sketch8.addConstraint(Sketcher.Constraint("Radius", 2, Q("2.5 mm")))
sketch8.addConstraint(Sketcher.Constraint("Radius", 3, Q("7.5 mm")))
sketch8.addConstraint(Sketcher.Constraint("Angle", 5, Q("150 deg")))
sketch8.addConstraint(Sketcher.Constraint("Radius", 36, Q("4.25 mm")))
sketch8.addConstraint(Sketcher.Constraint("DistanceY", -1, 1, 0, 3, Q("22 mm")))
sketch8.addConstraint(Sketcher.Constraint("DistanceY", -1, 1, 6, 3, Q("11 mm")))
pad6 = body5.newObject("PartDesign::Pad", "Pad005")
pad6.Profile = sketch8
pad6.Length = 16

doc.recompute()
